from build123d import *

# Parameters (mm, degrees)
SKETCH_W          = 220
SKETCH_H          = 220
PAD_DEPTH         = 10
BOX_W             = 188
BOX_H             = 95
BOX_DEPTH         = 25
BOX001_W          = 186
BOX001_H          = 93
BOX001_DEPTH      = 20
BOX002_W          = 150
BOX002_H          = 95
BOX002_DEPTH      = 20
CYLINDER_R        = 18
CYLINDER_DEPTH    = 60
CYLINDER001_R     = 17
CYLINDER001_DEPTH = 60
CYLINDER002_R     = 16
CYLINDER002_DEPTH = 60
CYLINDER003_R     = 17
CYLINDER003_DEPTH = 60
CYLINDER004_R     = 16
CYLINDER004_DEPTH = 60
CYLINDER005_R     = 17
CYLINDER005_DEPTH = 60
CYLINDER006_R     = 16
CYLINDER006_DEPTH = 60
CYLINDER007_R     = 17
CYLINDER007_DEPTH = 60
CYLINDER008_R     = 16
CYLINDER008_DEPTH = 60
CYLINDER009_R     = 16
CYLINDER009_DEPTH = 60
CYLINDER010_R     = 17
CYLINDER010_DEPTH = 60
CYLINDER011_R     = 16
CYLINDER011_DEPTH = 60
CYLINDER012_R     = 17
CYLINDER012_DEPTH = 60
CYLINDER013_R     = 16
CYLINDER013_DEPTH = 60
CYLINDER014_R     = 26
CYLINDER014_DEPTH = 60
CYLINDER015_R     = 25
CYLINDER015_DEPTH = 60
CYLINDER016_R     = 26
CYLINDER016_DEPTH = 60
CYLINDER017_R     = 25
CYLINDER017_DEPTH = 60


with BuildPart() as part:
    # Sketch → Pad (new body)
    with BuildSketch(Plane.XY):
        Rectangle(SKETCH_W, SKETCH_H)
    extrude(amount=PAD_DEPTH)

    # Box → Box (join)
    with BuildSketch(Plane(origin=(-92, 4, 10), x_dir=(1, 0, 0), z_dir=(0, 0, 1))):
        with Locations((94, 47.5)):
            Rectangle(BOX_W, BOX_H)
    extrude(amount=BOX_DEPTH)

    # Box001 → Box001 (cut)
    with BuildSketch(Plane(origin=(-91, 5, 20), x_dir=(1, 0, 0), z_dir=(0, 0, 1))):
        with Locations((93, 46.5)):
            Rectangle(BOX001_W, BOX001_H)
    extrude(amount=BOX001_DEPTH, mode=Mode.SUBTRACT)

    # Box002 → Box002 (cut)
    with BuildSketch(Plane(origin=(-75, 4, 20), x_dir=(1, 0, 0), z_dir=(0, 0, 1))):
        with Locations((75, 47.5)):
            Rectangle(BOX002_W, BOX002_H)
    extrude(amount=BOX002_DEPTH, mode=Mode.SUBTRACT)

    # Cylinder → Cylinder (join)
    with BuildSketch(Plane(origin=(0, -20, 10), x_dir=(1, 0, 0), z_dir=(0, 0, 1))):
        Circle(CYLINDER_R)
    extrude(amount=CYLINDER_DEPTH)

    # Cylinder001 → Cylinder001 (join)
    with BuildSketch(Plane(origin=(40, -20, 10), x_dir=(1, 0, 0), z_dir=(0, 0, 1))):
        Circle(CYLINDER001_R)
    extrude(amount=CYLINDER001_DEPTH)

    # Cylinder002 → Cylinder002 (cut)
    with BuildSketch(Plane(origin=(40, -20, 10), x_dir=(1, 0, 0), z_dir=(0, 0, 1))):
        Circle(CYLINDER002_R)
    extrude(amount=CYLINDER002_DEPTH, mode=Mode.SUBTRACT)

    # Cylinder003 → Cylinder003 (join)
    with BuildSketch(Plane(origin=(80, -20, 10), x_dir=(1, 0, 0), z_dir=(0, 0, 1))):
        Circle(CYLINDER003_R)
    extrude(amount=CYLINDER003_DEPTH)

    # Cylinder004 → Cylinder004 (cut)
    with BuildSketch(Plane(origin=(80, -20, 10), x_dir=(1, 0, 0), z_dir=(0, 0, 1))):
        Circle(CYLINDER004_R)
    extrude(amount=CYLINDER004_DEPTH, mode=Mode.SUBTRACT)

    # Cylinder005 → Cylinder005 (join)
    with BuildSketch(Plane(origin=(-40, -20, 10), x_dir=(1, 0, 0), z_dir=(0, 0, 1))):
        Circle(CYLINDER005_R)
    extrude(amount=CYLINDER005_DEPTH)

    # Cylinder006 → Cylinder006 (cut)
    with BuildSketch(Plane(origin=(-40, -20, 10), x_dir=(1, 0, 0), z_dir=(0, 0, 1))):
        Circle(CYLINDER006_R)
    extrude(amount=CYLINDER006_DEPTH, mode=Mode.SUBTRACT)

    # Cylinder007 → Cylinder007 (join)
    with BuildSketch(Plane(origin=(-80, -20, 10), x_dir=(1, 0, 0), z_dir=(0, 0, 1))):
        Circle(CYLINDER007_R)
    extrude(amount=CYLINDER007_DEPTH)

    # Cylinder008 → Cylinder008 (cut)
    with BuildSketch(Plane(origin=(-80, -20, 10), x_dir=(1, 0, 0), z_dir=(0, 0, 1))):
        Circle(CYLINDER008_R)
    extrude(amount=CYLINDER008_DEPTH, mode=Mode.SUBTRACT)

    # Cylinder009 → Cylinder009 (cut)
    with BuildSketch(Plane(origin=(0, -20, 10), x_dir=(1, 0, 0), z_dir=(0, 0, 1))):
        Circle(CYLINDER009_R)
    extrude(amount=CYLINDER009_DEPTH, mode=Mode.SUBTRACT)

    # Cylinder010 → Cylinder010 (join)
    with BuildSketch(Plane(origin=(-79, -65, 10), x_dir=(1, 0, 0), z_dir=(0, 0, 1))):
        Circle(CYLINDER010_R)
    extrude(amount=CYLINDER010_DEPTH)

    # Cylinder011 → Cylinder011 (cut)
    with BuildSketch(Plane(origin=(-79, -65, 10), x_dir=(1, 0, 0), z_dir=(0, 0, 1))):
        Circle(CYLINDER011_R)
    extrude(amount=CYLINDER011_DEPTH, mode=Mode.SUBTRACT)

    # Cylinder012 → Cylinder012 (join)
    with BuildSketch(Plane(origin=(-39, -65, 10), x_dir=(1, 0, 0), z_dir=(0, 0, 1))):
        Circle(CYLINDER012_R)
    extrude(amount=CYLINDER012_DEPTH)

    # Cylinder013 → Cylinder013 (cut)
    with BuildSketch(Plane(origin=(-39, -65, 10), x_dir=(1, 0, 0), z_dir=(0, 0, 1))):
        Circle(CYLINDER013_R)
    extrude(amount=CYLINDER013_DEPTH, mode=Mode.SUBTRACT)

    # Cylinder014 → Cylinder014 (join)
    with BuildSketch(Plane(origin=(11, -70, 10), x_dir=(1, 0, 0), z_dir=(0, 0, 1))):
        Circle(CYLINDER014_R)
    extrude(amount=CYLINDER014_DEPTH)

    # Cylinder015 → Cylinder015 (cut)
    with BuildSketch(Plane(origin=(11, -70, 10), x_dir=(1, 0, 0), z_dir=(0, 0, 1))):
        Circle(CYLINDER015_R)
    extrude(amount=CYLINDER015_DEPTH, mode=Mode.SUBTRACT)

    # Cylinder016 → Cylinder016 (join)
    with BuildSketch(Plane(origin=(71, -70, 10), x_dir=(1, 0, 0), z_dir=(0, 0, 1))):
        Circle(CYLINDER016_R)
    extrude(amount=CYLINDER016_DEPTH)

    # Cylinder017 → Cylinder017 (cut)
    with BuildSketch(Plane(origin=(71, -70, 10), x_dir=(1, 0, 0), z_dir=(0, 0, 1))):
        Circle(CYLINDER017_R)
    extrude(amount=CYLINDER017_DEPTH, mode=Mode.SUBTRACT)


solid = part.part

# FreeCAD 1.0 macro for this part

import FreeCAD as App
import Part
import Sketcher
Q = App.Units.Quantity

doc = App.newDocument("Part")
body = doc.addObject("PartDesign::Body", "Body")

# Sketch on XY plane
sketch1 = doc.addObject("Sketcher::SketchObject", "Sketch")
body.addObject(sketch1)
sketch1.AttachmentSupport = (doc.XY_Plane, [""])
sketch1.MapMode = "FlatFace"
sketch1.addGeometry([
    Part.LineSegment(App.Vector(-110, 110, 0), App.Vector(-110, -110, 0)),
    Part.LineSegment(App.Vector(-110, -110, 0), App.Vector(110, -110, 0)),
    Part.LineSegment(App.Vector(110, -110, 0), App.Vector(110, 110, 0)),
    Part.LineSegment(App.Vector(110, 110, 0), App.Vector(-110, 110, 0)),
], False)
sketch1.addConstraint([
    Sketcher.Constraint("Coincident", 0, 2, 1, 1),
    Sketcher.Constraint("Coincident", 1, 2, 2, 1),
    Sketcher.Constraint("Coincident", 2, 2, 3, 1),
    Sketcher.Constraint("Coincident", 3, 2, 0, 1),
    Sketcher.Constraint("Vertical", 0),
    Sketcher.Constraint("Horizontal", 1),
    Sketcher.Constraint("Vertical", 2),
    Sketcher.Constraint("Horizontal", 3),
    Sketcher.Constraint("Symmetric", 0, 2, 2, 2, -1, 1),
    Sketcher.Constraint("Equal", 3, 0),
    Sketcher.Constraint("DistanceX", 1, 1, 1, 2, Q("220 mm")),
])
pad1 = doc.addObject("PartDesign::Pad", "Pad")
body.addObject(pad1)
pad1.Profile = sketch1
pad1.Length = 10

# Sketch on XY plane
sketch2 = doc.addObject("Sketcher::SketchObject", "Sketch001")
body.addObject(sketch2)
sketch2.AttachmentSupport = (doc.XY_Plane, [""])
sketch2.MapMode = "FlatFace"
sketch2.AttachmentOffset = App.Placement(App.Vector(0, 0, 10), App.Rotation())
sketch2.addGeometry([
    Part.LineSegment(App.Vector(-92, 99, 0), App.Vector(-92, 4, 0)),
    Part.LineSegment(App.Vector(-92, 4, 0), App.Vector(96, 4, 0)),
    Part.LineSegment(App.Vector(96, 4, 0), App.Vector(96, 99, 0)),
    Part.LineSegment(App.Vector(96, 99, 0), App.Vector(-92, 99, 0)),
], False)
sketch2.addConstraint([
    Sketcher.Constraint("Coincident", 0, 2, 1, 1),
    Sketcher.Constraint("Coincident", 1, 2, 2, 1),
    Sketcher.Constraint("Coincident", 2, 2, 3, 1),
    Sketcher.Constraint("Coincident", 3, 2, 0, 1),
    Sketcher.Constraint("Vertical", 0),
    Sketcher.Constraint("Horizontal", 1),
    Sketcher.Constraint("Vertical", 2),
    Sketcher.Constraint("Horizontal", 3),
    Sketcher.Constraint("DistanceX", 1, 1, 1, 2, Q("188 mm")),
    Sketcher.Constraint("DistanceY", 0, 2, 0, 1, Q("95 mm")),
    Sketcher.Constraint("DistanceX", 0, 2, -1, 1, Q("92 mm")),
    Sketcher.Constraint("DistanceY", -1, 1, 0, 2, Q("4 mm")),
])
pad2 = doc.addObject("PartDesign::Pad", "Pad001")
body.addObject(pad2)
pad2.Profile = sketch2
pad2.Length = 25

# Sketch on XY plane
sketch3 = doc.addObject("Sketcher::SketchObject", "Sketch002")
body.addObject(sketch3)
sketch3.AttachmentSupport = (doc.XY_Plane, [""])
sketch3.MapMode = "FlatFace"
sketch3.AttachmentOffset = App.Placement(App.Vector(0, 0, 20), App.Rotation())
sketch3.addGeometry([
    Part.LineSegment(App.Vector(-91, 98, 0), App.Vector(-91, 5, 0)),
    Part.LineSegment(App.Vector(-91, 5, 0), App.Vector(95, 5, 0)),
    Part.LineSegment(App.Vector(95, 5, 0), App.Vector(95, 98, 0)),
    Part.LineSegment(App.Vector(95, 98, 0), App.Vector(-91, 98, 0)),
], False)
sketch3.addConstraint([
    Sketcher.Constraint("Coincident", 0, 2, 1, 1),
    Sketcher.Constraint("Coincident", 1, 2, 2, 1),
    Sketcher.Constraint("Coincident", 2, 2, 3, 1),
    Sketcher.Constraint("Coincident", 3, 2, 0, 1),
    Sketcher.Constraint("Vertical", 0),
    Sketcher.Constraint("Horizontal", 1),
    Sketcher.Constraint("Vertical", 2),
    Sketcher.Constraint("Horizontal", 3),
    Sketcher.Constraint("DistanceX", 1, 1, 1, 2, Q("186 mm")),
    Sketcher.Constraint("DistanceY", 0, 2, 0, 1, Q("93 mm")),
    Sketcher.Constraint("DistanceX", 0, 2, -1, 1, Q("91 mm")),
    Sketcher.Constraint("DistanceY", -1, 1, 0, 2, Q("5 mm")),
])
pocket1 = doc.addObject("PartDesign::Pocket", "Pocket")
body.addObject(pocket1)
pocket1.Profile = sketch3
pocket1.Length = 20
pocket1.Reversed = True

# Sketch on XY plane
sketch4 = doc.addObject("Sketcher::SketchObject", "Sketch003")
body.addObject(sketch4)
sketch4.AttachmentSupport = (doc.XY_Plane, [""])
sketch4.MapMode = "FlatFace"
sketch4.AttachmentOffset = App.Placement(App.Vector(0, 0, 20), App.Rotation())
sketch4.addGeometry([
    Part.LineSegment(App.Vector(-75, 99, 0), App.Vector(-75, 4, 0)),
    Part.LineSegment(App.Vector(-75, 4, 0), App.Vector(75, 4, 0)),
    Part.LineSegment(App.Vector(75, 4, 0), App.Vector(75, 99, 0)),
    Part.LineSegment(App.Vector(75, 99, 0), App.Vector(-75, 99, 0)),
], False)
sketch4.addConstraint([
    Sketcher.Constraint("Coincident", 0, 2, 1, 1),
    Sketcher.Constraint("Coincident", 1, 2, 2, 1),
    Sketcher.Constraint("Coincident", 2, 2, 3, 1),
    Sketcher.Constraint("Coincident", 3, 2, 0, 1),
    Sketcher.Constraint("Vertical", 0),
    Sketcher.Constraint("Horizontal", 1),
    Sketcher.Constraint("Vertical", 2),
    Sketcher.Constraint("Horizontal", 3),
    Sketcher.Constraint("DistanceX", 1, 1, 1, 2, Q("150 mm")),
    Sketcher.Constraint("DistanceY", 0, 2, 0, 1, Q("95 mm")),
    Sketcher.Constraint("DistanceX", 0, 2, -1, 1, Q("75 mm")),
    Sketcher.Constraint("DistanceY", -1, 1, 0, 2, Q("4 mm")),
])
pocket2 = doc.addObject("PartDesign::Pocket", "Pocket001")
body.addObject(pocket2)
pocket2.Profile = sketch4
pocket2.Length = 20
pocket2.Reversed = True

# Sketch on XY plane
sketch5 = doc.addObject("Sketcher::SketchObject", "Sketch004")
body.addObject(sketch5)
sketch5.AttachmentSupport = (doc.XY_Plane, [""])
sketch5.MapMode = "FlatFace"
sketch5.AttachmentOffset = App.Placement(App.Vector(0, 0, 10), App.Rotation())
sketch5.addGeometry(Part.Circle(App.Vector(0, -20, 0), App.Vector(0, 0, 1), 18), False)
sketch5.addConstraint([
    Sketcher.Constraint("PointOnObject", 0, 3, -2),
    Sketcher.Constraint("Diameter", 0, Q("36 mm")),
    Sketcher.Constraint("DistanceY", 0, 3, -1, 1, Q("20 mm")),
])
pad3 = doc.addObject("PartDesign::Pad", "Pad002")
body.addObject(pad3)
pad3.Profile = sketch5
pad3.Length = 60

# Sketch on XY plane
sketch6 = doc.addObject("Sketcher::SketchObject", "Sketch005")
body.addObject(sketch6)
sketch6.AttachmentSupport = (doc.XY_Plane, [""])
sketch6.MapMode = "FlatFace"
sketch6.AttachmentOffset = App.Placement(App.Vector(0, 0, 10), App.Rotation())
sketch6.addGeometry(Part.Circle(App.Vector(40, -20, 0), App.Vector(0, 0, 1), 17), False)
sketch6.addConstraint([
    Sketcher.Constraint("Diameter", 0, Q("34 mm")),
    Sketcher.Constraint("DistanceX", -1, 1, 0, 3, Q("40 mm")),
    Sketcher.Constraint("DistanceY", 0, 3, -1, 1, Q("20 mm")),
])
pad4 = doc.addObject("PartDesign::Pad", "Pad003")
body.addObject(pad4)
pad4.Profile = sketch6
pad4.Length = 60

# Sketch on XY plane
sketch7 = doc.addObject("Sketcher::SketchObject", "Sketch006")
body.addObject(sketch7)
sketch7.AttachmentSupport = (doc.XY_Plane, [""])
sketch7.MapMode = "FlatFace"
sketch7.AttachmentOffset = App.Placement(App.Vector(0, 0, 10), App.Rotation())
sketch7.addGeometry(Part.Circle(App.Vector(40, -20, 0), App.Vector(0, 0, 1), 16), False)
sketch7.addConstraint([
    Sketcher.Constraint("Diameter", 0, Q("32 mm")),
    Sketcher.Constraint("DistanceX", -1, 1, 0, 3, Q("40 mm")),
    Sketcher.Constraint("DistanceY", 0, 3, -1, 1, Q("20 mm")),
])
pocket3 = doc.addObject("PartDesign::Pocket", "Pocket002")
body.addObject(pocket3)
pocket3.Profile = sketch7
pocket3.Length = 60
pocket3.Reversed = True

# Sketch on XY plane
sketch8 = doc.addObject("Sketcher::SketchObject", "Sketch007")
body.addObject(sketch8)
sketch8.AttachmentSupport = (doc.XY_Plane, [""])
sketch8.MapMode = "FlatFace"
sketch8.AttachmentOffset = App.Placement(App.Vector(0, 0, 10), App.Rotation())
sketch8.addGeometry(Part.Circle(App.Vector(80, -20, 0), App.Vector(0, 0, 1), 17), False)
sketch8.addConstraint([
    Sketcher.Constraint("Diameter", 0, Q("34 mm")),
    Sketcher.Constraint("DistanceX", -1, 1, 0, 3, Q("80 mm")),
    Sketcher.Constraint("DistanceY", 0, 3, -1, 1, Q("20 mm")),
])
pad5 = doc.addObject("PartDesign::Pad", "Pad004")
body.addObject(pad5)
pad5.Profile = sketch8
pad5.Length = 60

# Sketch on XY plane
sketch9 = doc.addObject("Sketcher::SketchObject", "Sketch008")
body.addObject(sketch9)
sketch9.AttachmentSupport = (doc.XY_Plane, [""])
sketch9.MapMode = "FlatFace"
sketch9.AttachmentOffset = App.Placement(App.Vector(0, 0, 10), App.Rotation())
sketch9.addGeometry(Part.Circle(App.Vector(80, -20, 0), App.Vector(0, 0, 1), 16), False)
sketch9.addConstraint([
    Sketcher.Constraint("Diameter", 0, Q("32 mm")),
    Sketcher.Constraint("DistanceX", -1, 1, 0, 3, Q("80 mm")),
    Sketcher.Constraint("DistanceY", 0, 3, -1, 1, Q("20 mm")),
])
pocket4 = doc.addObject("PartDesign::Pocket", "Pocket003")
body.addObject(pocket4)
pocket4.Profile = sketch9
pocket4.Length = 60
pocket4.Reversed = True

# Sketch on XY plane
sketch10 = doc.addObject("Sketcher::SketchObject", "Sketch009")
body.addObject(sketch10)
sketch10.AttachmentSupport = (doc.XY_Plane, [""])
sketch10.MapMode = "FlatFace"
sketch10.AttachmentOffset = App.Placement(App.Vector(0, 0, 10), App.Rotation())
sketch10.addGeometry(Part.Circle(App.Vector(-40, -20, 0), App.Vector(0, 0, 1), 17), False)
sketch10.addConstraint([
    Sketcher.Constraint("Diameter", 0, Q("34 mm")),
    Sketcher.Constraint("DistanceX", 0, 3, -1, 1, Q("40 mm")),
    Sketcher.Constraint("DistanceY", 0, 3, -1, 1, Q("20 mm")),
])
pad6 = doc.addObject("PartDesign::Pad", "Pad005")
body.addObject(pad6)
pad6.Profile = sketch10
pad6.Length = 60

# Sketch on XY plane
sketch11 = doc.addObject("Sketcher::SketchObject", "Sketch010")
body.addObject(sketch11)
sketch11.AttachmentSupport = (doc.XY_Plane, [""])
sketch11.MapMode = "FlatFace"
sketch11.AttachmentOffset = App.Placement(App.Vector(0, 0, 10), App.Rotation())
sketch11.addGeometry(Part.Circle(App.Vector(-40, -20, 0), App.Vector(0, 0, 1), 16), False)
sketch11.addConstraint([
    Sketcher.Constraint("Diameter", 0, Q("32 mm")),
    Sketcher.Constraint("DistanceX", 0, 3, -1, 1, Q("40 mm")),
    Sketcher.Constraint("DistanceY", 0, 3, -1, 1, Q("20 mm")),
])
pocket5 = doc.addObject("PartDesign::Pocket", "Pocket004")
body.addObject(pocket5)
pocket5.Profile = sketch11
pocket5.Length = 60
pocket5.Reversed = True

# Sketch on XY plane
sketch12 = doc.addObject("Sketcher::SketchObject", "Sketch011")
body.addObject(sketch12)
sketch12.AttachmentSupport = (doc.XY_Plane, [""])
sketch12.MapMode = "FlatFace"
sketch12.AttachmentOffset = App.Placement(App.Vector(0, 0, 10), App.Rotation())
sketch12.addGeometry(Part.Circle(App.Vector(-80, -20, 0), App.Vector(0, 0, 1), 17), False)
sketch12.addConstraint([
    Sketcher.Constraint("Diameter", 0, Q("34 mm")),
    Sketcher.Constraint("DistanceX", 0, 3, -1, 1, Q("80 mm")),
    Sketcher.Constraint("DistanceY", 0, 3, -1, 1, Q("20 mm")),
])
pad7 = doc.addObject("PartDesign::Pad", "Pad006")
body.addObject(pad7)
pad7.Profile = sketch12
pad7.Length = 60

# Sketch on XY plane
sketch13 = doc.addObject("Sketcher::SketchObject", "Sketch012")
body.addObject(sketch13)
sketch13.AttachmentSupport = (doc.XY_Plane, [""])
sketch13.MapMode = "FlatFace"
sketch13.AttachmentOffset = App.Placement(App.Vector(0, 0, 10), App.Rotation())
sketch13.addGeometry(Part.Circle(App.Vector(-80, -20, 0), App.Vector(0, 0, 1), 16), False)
sketch13.addConstraint([
    Sketcher.Constraint("Diameter", 0, Q("32 mm")),
    Sketcher.Constraint("DistanceX", 0, 3, -1, 1, Q("80 mm")),
    Sketcher.Constraint("DistanceY", 0, 3, -1, 1, Q("20 mm")),
])
pocket6 = doc.addObject("PartDesign::Pocket", "Pocket005")
body.addObject(pocket6)
pocket6.Profile = sketch13
pocket6.Length = 60
pocket6.Reversed = True

# Sketch on XY plane
sketch14 = doc.addObject("Sketcher::SketchObject", "Sketch013")
body.addObject(sketch14)
sketch14.AttachmentSupport = (doc.XY_Plane, [""])
sketch14.MapMode = "FlatFace"
sketch14.AttachmentOffset = App.Placement(App.Vector(0, 0, 10), App.Rotation())
sketch14.addGeometry(Part.Circle(App.Vector(0, -20, 0), App.Vector(0, 0, 1), 16), False)
sketch14.addConstraint([
    Sketcher.Constraint("PointOnObject", 0, 3, -2),
    Sketcher.Constraint("Diameter", 0, Q("32 mm")),
    Sketcher.Constraint("DistanceY", 0, 3, -1, 1, Q("20 mm")),
])
pocket7 = doc.addObject("PartDesign::Pocket", "Pocket006")
body.addObject(pocket7)
pocket7.Profile = sketch14
pocket7.Length = 60
pocket7.Reversed = True

# Sketch on XY plane
sketch15 = doc.addObject("Sketcher::SketchObject", "Sketch014")
body.addObject(sketch15)
sketch15.AttachmentSupport = (doc.XY_Plane, [""])
sketch15.MapMode = "FlatFace"
sketch15.AttachmentOffset = App.Placement(App.Vector(0, 0, 10), App.Rotation())
sketch15.addGeometry(Part.Circle(App.Vector(-79, -65, 0), App.Vector(0, 0, 1), 17), False)
sketch15.addConstraint([
    Sketcher.Constraint("Diameter", 0, Q("34 mm")),
    Sketcher.Constraint("DistanceX", 0, 3, -1, 1, Q("79 mm")),
    Sketcher.Constraint("DistanceY", 0, 3, -1, 1, Q("65 mm")),
])
pad8 = doc.addObject("PartDesign::Pad", "Pad007")
body.addObject(pad8)
pad8.Profile = sketch15
pad8.Length = 60

# Sketch on XY plane
sketch16 = doc.addObject("Sketcher::SketchObject", "Sketch015")
body.addObject(sketch16)
sketch16.AttachmentSupport = (doc.XY_Plane, [""])
sketch16.MapMode = "FlatFace"
sketch16.AttachmentOffset = App.Placement(App.Vector(0, 0, 10), App.Rotation())
sketch16.addGeometry(Part.Circle(App.Vector(-79, -65, 0), App.Vector(0, 0, 1), 16), False)
sketch16.addConstraint([
    Sketcher.Constraint("Diameter", 0, Q("32 mm")),
    Sketcher.Constraint("DistanceX", 0, 3, -1, 1, Q("79 mm")),
    Sketcher.Constraint("DistanceY", 0, 3, -1, 1, Q("65 mm")),
])
pocket8 = doc.addObject("PartDesign::Pocket", "Pocket007")
body.addObject(pocket8)
pocket8.Profile = sketch16
pocket8.Length = 60
pocket8.Reversed = True

# Sketch on XY plane
sketch17 = doc.addObject("Sketcher::SketchObject", "Sketch016")
body.addObject(sketch17)
sketch17.AttachmentSupport = (doc.XY_Plane, [""])
sketch17.MapMode = "FlatFace"
sketch17.AttachmentOffset = App.Placement(App.Vector(0, 0, 10), App.Rotation())
sketch17.addGeometry(Part.Circle(App.Vector(-39, -65, 0), App.Vector(0, 0, 1), 17), False)
sketch17.addConstraint([
    Sketcher.Constraint("Diameter", 0, Q("34 mm")),
    Sketcher.Constraint("DistanceX", 0, 3, -1, 1, Q("39 mm")),
    Sketcher.Constraint("DistanceY", 0, 3, -1, 1, Q("65 mm")),
])
pad9 = doc.addObject("PartDesign::Pad", "Pad008")
body.addObject(pad9)
pad9.Profile = sketch17
pad9.Length = 60

# Sketch on XY plane
sketch18 = doc.addObject("Sketcher::SketchObject", "Sketch017")
body.addObject(sketch18)
sketch18.AttachmentSupport = (doc.XY_Plane, [""])
sketch18.MapMode = "FlatFace"
sketch18.AttachmentOffset = App.Placement(App.Vector(0, 0, 10), App.Rotation())
sketch18.addGeometry(Part.Circle(App.Vector(-39, -65, 0), App.Vector(0, 0, 1), 16), False)
sketch18.addConstraint([
    Sketcher.Constraint("Diameter", 0, Q("32 mm")),
    Sketcher.Constraint("DistanceX", 0, 3, -1, 1, Q("39 mm")),
    Sketcher.Constraint("DistanceY", 0, 3, -1, 1, Q("65 mm")),
])
pocket9 = doc.addObject("PartDesign::Pocket", "Pocket008")
body.addObject(pocket9)
pocket9.Profile = sketch18
pocket9.Length = 60
pocket9.Reversed = True

# Sketch on XY plane
sketch19 = doc.addObject("Sketcher::SketchObject", "Sketch018")
body.addObject(sketch19)
sketch19.AttachmentSupport = (doc.XY_Plane, [""])
sketch19.MapMode = "FlatFace"
sketch19.AttachmentOffset = App.Placement(App.Vector(0, 0, 10), App.Rotation())
sketch19.addGeometry(Part.Circle(App.Vector(11, -70, 0), App.Vector(0, 0, 1), 26), False)
sketch19.addConstraint([
    Sketcher.Constraint("Diameter", 0, Q("52 mm")),
    Sketcher.Constraint("DistanceX", -1, 1, 0, 3, Q("11 mm")),
    Sketcher.Constraint("DistanceY", 0, 3, -1, 1, Q("70 mm")),
])
pad10 = doc.addObject("PartDesign::Pad", "Pad009")
body.addObject(pad10)
pad10.Profile = sketch19
pad10.Length = 60

# Sketch on XY plane
sketch20 = doc.addObject("Sketcher::SketchObject", "Sketch019")
body.addObject(sketch20)
sketch20.AttachmentSupport = (doc.XY_Plane, [""])
sketch20.MapMode = "FlatFace"
sketch20.AttachmentOffset = App.Placement(App.Vector(0, 0, 10), App.Rotation())
sketch20.addGeometry(Part.Circle(App.Vector(11, -70, 0), App.Vector(0, 0, 1), 25), False)
sketch20.addConstraint([
    Sketcher.Constraint("Diameter", 0, Q("50 mm")),
    Sketcher.Constraint("DistanceX", -1, 1, 0, 3, Q("11 mm")),
    Sketcher.Constraint("DistanceY", 0, 3, -1, 1, Q("70 mm")),
])
pocket10 = doc.addObject("PartDesign::Pocket", "Pocket009")
body.addObject(pocket10)
pocket10.Profile = sketch20
pocket10.Length = 60
pocket10.Reversed = True

# Sketch on XY plane
sketch21 = doc.addObject("Sketcher::SketchObject", "Sketch020")
body.addObject(sketch21)
sketch21.AttachmentSupport = (doc.XY_Plane, [""])
sketch21.MapMode = "FlatFace"
sketch21.AttachmentOffset = App.Placement(App.Vector(0, 0, 10), App.Rotation())
sketch21.addGeometry(Part.Circle(App.Vector(71, -70, 0), App.Vector(0, 0, 1), 26), False)
sketch21.addConstraint([
    Sketcher.Constraint("Diameter", 0, Q("52 mm")),
    Sketcher.Constraint("DistanceX", -1, 1, 0, 3, Q("71 mm")),
    Sketcher.Constraint("DistanceY", 0, 3, -1, 1, Q("70 mm")),
])
pad11 = doc.addObject("PartDesign::Pad", "Pad010")
body.addObject(pad11)
pad11.Profile = sketch21
pad11.Length = 60

# Sketch on XY plane
sketch22 = doc.addObject("Sketcher::SketchObject", "Sketch021")
body.addObject(sketch22)
sketch22.AttachmentSupport = (doc.XY_Plane, [""])
sketch22.MapMode = "FlatFace"
sketch22.AttachmentOffset = App.Placement(App.Vector(0, 0, 10), App.Rotation())
sketch22.addGeometry(Part.Circle(App.Vector(71, -70, 0), App.Vector(0, 0, 1), 25), False)
sketch22.addConstraint([
    Sketcher.Constraint("Diameter", 0, Q("50 mm")),
    Sketcher.Constraint("DistanceX", -1, 1, 0, 3, Q("71 mm")),
    Sketcher.Constraint("DistanceY", 0, 3, -1, 1, Q("70 mm")),
])
pocket11 = doc.addObject("PartDesign::Pocket", "Pocket010")
body.addObject(pocket11)
pocket11.Profile = sketch22
pocket11.Length = 60
pocket11.Reversed = True

doc.recompute()
